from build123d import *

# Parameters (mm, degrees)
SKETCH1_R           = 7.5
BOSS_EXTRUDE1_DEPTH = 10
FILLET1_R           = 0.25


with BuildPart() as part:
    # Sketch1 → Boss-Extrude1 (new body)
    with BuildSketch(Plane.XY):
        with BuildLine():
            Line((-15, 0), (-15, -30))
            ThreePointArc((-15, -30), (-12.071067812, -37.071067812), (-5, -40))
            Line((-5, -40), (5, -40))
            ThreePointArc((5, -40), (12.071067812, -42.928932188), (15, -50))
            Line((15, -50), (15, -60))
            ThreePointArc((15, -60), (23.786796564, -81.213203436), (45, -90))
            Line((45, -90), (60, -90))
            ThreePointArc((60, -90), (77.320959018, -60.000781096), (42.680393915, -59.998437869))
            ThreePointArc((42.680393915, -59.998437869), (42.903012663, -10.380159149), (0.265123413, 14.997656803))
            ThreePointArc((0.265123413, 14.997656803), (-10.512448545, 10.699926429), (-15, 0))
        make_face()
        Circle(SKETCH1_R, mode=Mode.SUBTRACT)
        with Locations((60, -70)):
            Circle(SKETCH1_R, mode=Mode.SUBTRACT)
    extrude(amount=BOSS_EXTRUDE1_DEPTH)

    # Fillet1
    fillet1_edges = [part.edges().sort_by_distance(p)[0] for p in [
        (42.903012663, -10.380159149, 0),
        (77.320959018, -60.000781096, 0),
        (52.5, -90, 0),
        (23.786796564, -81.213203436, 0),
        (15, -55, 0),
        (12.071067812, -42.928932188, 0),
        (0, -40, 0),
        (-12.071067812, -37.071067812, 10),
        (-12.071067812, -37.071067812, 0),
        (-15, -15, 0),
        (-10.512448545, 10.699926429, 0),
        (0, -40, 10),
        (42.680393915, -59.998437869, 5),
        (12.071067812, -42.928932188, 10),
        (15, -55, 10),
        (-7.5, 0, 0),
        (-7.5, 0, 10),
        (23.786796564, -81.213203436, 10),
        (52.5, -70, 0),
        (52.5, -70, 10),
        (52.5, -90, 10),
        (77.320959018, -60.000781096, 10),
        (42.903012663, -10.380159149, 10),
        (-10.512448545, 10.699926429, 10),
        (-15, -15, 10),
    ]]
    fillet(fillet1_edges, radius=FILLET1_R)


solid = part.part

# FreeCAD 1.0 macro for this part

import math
import FreeCAD as App
import Part
import Sketcher
from FreeCAD import Vector


def edges_at(feature, points):
    """Names of the edges that pass closest to the given points."""
    edges = feature.Shape.Edges
    near = lambda p: min(range(len(edges)), key=lambda i: edges[i].distToShape(Part.Vertex(*p))[0])
    return sorted({f"Edge{near(p) + 1}" for p in points})

doc = App.newDocument("Part")
params = doc.addObject("Spreadsheet::Sheet", "Params")
for row, (alias, value) in enumerate([
    ("sketch1_diameter", "15 mm"),
    ("sketch1_radius", "10 mm"),
    ("sketch1_radius2", "30 mm"),
    ("sketch1_radius3", "20 mm"),
    ("sketch1_radius4", "50 mm"),
    ("pad1_length", "10 mm"),
    ("fillet_radius", "0.25 mm"),
], start=1):
    params.set(f"A{row}", alias)
    params.set(f"B{row}", "=" + value)
    params.setAlias(f"B{row}", alias)

body = doc.addObject("PartDesign::Body", "Body")

# Sketch on XY plane
sketch1 = doc.addObject("Sketcher::SketchObject", "Sketch")
body.addObject(sketch1)
sketch1.AttachmentSupport = (doc.XY_Plane, [""])
sketch1.MapMode = "FlatFace"
sketch1.addGeometry(Part.LineSegment(Vector(-15, 0, 0), Vector(-15, -30, 0)), False)
sketch1.addGeometry(Part.ArcOfCircle(Part.Circle(Vector(-5, -30, 0), Vector(0, 0, 1), 10), math.radians(180), math.radians(270)), False)
sketch1.addGeometry(Part.LineSegment(Vector(-5, -40, 0), Vector(5, -40, 0)), False)
sketch1.addGeometry(Part.ArcOfCircle(Part.Circle(Vector(5, -50, 0), Vector(0, 0, 1), 10), math.radians(0), math.radians(90)), False)
sketch1.addGeometry(Part.LineSegment(Vector(15, -50, 0), Vector(15, -60, 0)), False)
sketch1.addGeometry(Part.ArcOfCircle(Part.Circle(Vector(45, -60, 0), Vector(0, 0, 1), 30), math.radians(180), math.radians(270)), False)
sketch1.addGeometry(Part.LineSegment(Vector(45, -90, 0), Vector(60, -90, 0)), False)
sketch1.addGeometry(Part.ArcOfCircle(Part.Circle(Vector(60, -70, 0), Vector(0, 0, 1), 20), math.radians(-90), math.radians(150)), False)
sketch1.addGeometry(Part.ArcOfCircle(Part.Circle(Vector(-1, -35, 0), Vector(0, 0, 1), 50), math.radians(-30), math.radians(89)), False)
sketch1.addGeometry(Part.ArcOfCircle(Part.Circle(Vector(0, 0, 0), Vector(0, 0, 1), 15), math.radians(89), math.radians(180)), False)
sketch1.addGeometry(Part.Circle(Vector(60, -70, 0), Vector(0, 0, 1), 8), False)
sketch1.addGeometry(Part.Circle(Vector(0, 0, 0), Vector(0, 0, 1), 8), False)
sketch1.addConstraint(Sketcher.Constraint("Tangent", 0, 2, 1, 1))
sketch1.addConstraint(Sketcher.Constraint("Tangent", 1, 2, 2, 1))
sketch1.addConstraint(Sketcher.Constraint("Tangent", 2, 2, 3, 2))
sketch1.addConstraint(Sketcher.Constraint("Tangent", 3, 1, 4, 1))
sketch1.addConstraint(Sketcher.Constraint("Tangent", 4, 2, 5, 1))
sketch1.addConstraint(Sketcher.Constraint("Tangent", 5, 2, 6, 1))
sketch1.addConstraint(Sketcher.Constraint("Tangent", 6, 2, 7, 1))
sketch1.addConstraint(Sketcher.Constraint("Tangent", 7, 2, 8, 1))
sketch1.addConstraint(Sketcher.Constraint("Tangent", 8, 2, 9, 1))
sketch1.addConstraint(Sketcher.Constraint("Tangent", 9, 2, 0, 1))
sketch1.addConstraint(Sketcher.Constraint("Vertical", 0))
sketch1.addConstraint(Sketcher.Constraint("Horizontal", 2))
sketch1.addConstraint(Sketcher.Constraint("Vertical", 4))
sketch1.addConstraint(Sketcher.Constraint("Horizontal", 6))
sketch1.addConstraint(Sketcher.Constraint("Coincident", 9, 3, -1, 1))
sketch1.addConstraint(Sketcher.Constraint("Coincident", 11, 3, -1, 1))
sketch1.addConstraint(Sketcher.Constraint("Coincident", 10, 3, 7, 3))
sketch1.addConstraint(Sketcher.Constraint("Equal", 1, 3))
sketch1.addConstraint(Sketcher.Constraint("Equal", 10, 11))
sketch1.addConstraint(Sketcher.Constraint("Equal", 2, 4))
sketch1.addConstraint(Sketcher.Constraint("Diameter", 10, 15.0))
sketch1.addConstraint(Sketcher.Constraint("Radius", 1, 10.0))
sketch1.addConstraint(Sketcher.Constraint("Radius", 5, 30.0))
sketch1.addConstraint(Sketcher.Constraint("Radius", 7, 20.0))
sketch1.addConstraint(Sketcher.Constraint("Radius", 8, 50.0))
sketch1.addConstraint(Sketcher.Constraint("Radius", 9, 15.0))
sketch1.addConstraint(Sketcher.Constraint("DistanceX", 2, 1, 2, 2, 10.0))
sketch1.addConstraint(Sketcher.Constraint("DistanceX", 6, 1, 6, 2, 15.0))
sketch1.addConstraint(Sketcher.Constraint("DistanceY", 0, 2, 0, 1, 30.0))
sketch1.setExpression("Constraints[20]", "Params.sketch1_diameter")
sketch1.setExpression("Constraints[21]", "Params.sketch1_radius")
sketch1.setExpression("Constraints[22]", "Params.sketch1_radius2")
sketch1.setExpression("Constraints[23]", "Params.sketch1_radius3")
sketch1.setExpression("Constraints[24]", "Params.sketch1_radius4")
pad1 = doc.addObject("PartDesign::Pad", "Pad")
body.addObject(pad1)
pad1.Profile = sketch1
pad1.setExpression("Length", "Params.pad1_length")
doc.recompute()

fillet = doc.addObject("PartDesign::Fillet", "Fillet")
body.addObject(fillet)
fillet.Base = (pad1, edges_at(pad1, [
    (42.903, -10.38, 0),
    (77.321, -60.001, 0),
    (52.5, -90, 0),
    (23.787, -81.213, 0),
    (15, -55, 0),
    (12.071, -42.929, 0),
    (0, -40, 0),
    (-12.071, -37.071, 10),
    (-12.071, -37.071, 0),
    (-15, -15, 0),
    (-10.512, 10.7, 0),
    (0, -40, 10),
    (42.68, -59.998, 5),
    (12.071, -42.929, 10),
    (15, -55, 10),
    (-7.5, 0, 0),
    (-7.5, 0, 10),
    (23.787, -81.213, 10),
    (52.5, -70, 0),
    (52.5, -70, 10),
    (52.5, -90, 10),
    (77.321, -60.001, 10),
    (42.903, -10.38, 10),
    (-10.512, 10.7, 10),
    (-15, -15, 10),
]))
fillet.setExpression("Radius", "Params.fillet_radius")

doc.recompute()
